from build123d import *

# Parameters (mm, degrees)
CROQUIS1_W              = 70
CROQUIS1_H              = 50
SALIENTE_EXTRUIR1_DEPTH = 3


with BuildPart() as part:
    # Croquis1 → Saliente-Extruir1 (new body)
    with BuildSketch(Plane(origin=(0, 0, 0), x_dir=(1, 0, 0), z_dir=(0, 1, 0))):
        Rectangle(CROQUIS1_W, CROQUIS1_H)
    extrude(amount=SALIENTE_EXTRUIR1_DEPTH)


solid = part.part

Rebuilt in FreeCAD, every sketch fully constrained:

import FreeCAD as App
import Part
import Sketcher
from FreeCAD import Vector
Q = App.Units.Quantity

doc = App.newDocument("Part")
body = doc.addObject("PartDesign::Body", "Body")

# Sketch on XZ plane
sketch1 = body.newObject("Sketcher::SketchObject", "Sketch")
sketch1.AttachmentSupport = (doc.getObject("XZ_Plane"), [""])
sketch1.MapMode = "FlatFace"
sketch1.addGeometry(Part.LineSegment(Vector(-35, -25, 0), Vector(-35, 25, 0)), False)
sketch1.addGeometry(Part.LineSegment(Vector(-35, 25, 0), Vector(35, 25, 0)), False)
sketch1.addGeometry(Part.LineSegment(Vector(35, 25, 0), Vector(35, -25, 0)), False)
sketch1.addGeometry(Part.LineSegment(Vector(35, -25, 0), Vector(-35, -25, 0)), False)
sketch1.addConstraint(Sketcher.Constraint("Coincident", 0, 2, 1, 1))
sketch1.addConstraint(Sketcher.Constraint("Coincident", 1, 2, 2, 1))
sketch1.addConstraint(Sketcher.Constraint("Coincident", 2, 2, 3, 1))
sketch1.addConstraint(Sketcher.Constraint("Coincident", 3, 2, 0, 1))
sketch1.addConstraint(Sketcher.Constraint("Vertical", 0))
sketch1.addConstraint(Sketcher.Constraint("Horizontal", 1))
sketch1.addConstraint(Sketcher.Constraint("Vertical", 2))
sketch1.addConstraint(Sketcher.Constraint("Horizontal", 3))
sketch1.addConstraint(Sketcher.Constraint("Symmetric", 0, 2, 2, 2, -1, 1))
sketch1.addConstraint(Sketcher.Constraint("DistanceX", 1, 1, 1, 2, Q("70 mm")))
sketch1.addConstraint(Sketcher.Constraint("DistanceY", 0, 1, 0, 2, Q("50 mm")))
pad1 = body.newObject("PartDesign::Pad", "Pad")
pad1.Profile = sketch1
pad1.Length = 3
pad1.Reversed = True

doc.recompute()
